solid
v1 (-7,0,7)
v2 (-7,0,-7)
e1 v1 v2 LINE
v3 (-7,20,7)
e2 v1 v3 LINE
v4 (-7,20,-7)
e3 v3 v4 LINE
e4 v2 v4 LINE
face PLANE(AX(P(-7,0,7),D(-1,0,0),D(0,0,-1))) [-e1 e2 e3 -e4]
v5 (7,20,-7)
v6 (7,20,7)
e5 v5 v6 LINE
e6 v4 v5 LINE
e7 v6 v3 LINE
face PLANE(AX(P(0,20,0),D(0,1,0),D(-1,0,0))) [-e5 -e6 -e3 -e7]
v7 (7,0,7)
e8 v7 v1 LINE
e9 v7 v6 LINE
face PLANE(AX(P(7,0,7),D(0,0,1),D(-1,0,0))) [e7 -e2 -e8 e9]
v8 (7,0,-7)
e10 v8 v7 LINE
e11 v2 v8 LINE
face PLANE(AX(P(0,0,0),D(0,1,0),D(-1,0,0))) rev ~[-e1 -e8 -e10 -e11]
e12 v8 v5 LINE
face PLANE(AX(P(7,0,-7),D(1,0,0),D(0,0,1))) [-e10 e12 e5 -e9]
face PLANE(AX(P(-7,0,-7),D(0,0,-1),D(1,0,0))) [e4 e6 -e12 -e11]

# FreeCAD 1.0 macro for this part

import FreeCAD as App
import Part
import Sketcher
Q = App.Units.Quantity


def add_polygon(sketch, points):
    """Adds a closed chain of lines whose ends are joined by coincident constraints."""
    first, n = sketch.GeometryCount, len(points)
    for a, b in zip(points, points[1:] + points[:1]):
        sketch.addGeometry(Part.LineSegment(App.Vector(*a, 0), App.Vector(*b, 0)), False)
    for i in range(n):
        sketch.addConstraint(Sketcher.Constraint("Coincident", first + i, 2, first + (i + 1) % n, 1))

doc = App.newDocument("Part")
body = doc.addObject("PartDesign::Body", "Body")

sketch1 = body.newObject("Sketcher::SketchObject", "Sketch")
sketch1.AttachmentSupport = (doc.getObject("XZ_Plane"), [""])
sketch1.MapMode = "FlatFace"
add_polygon(sketch1, [(-7, 7), (7, 7), (7, -7), (-7, -7)])
sketch1.addConstraint(Sketcher.Constraint("Horizontal", 0))
sketch1.addConstraint(Sketcher.Constraint("Vertical", 1))
sketch1.addConstraint(Sketcher.Constraint("Horizontal", 2))
sketch1.addConstraint(Sketcher.Constraint("Vertical", 3))
sketch1.addConstraint(Sketcher.Constraint("Symmetric", 0, 2, 2, 2, -1, 1))
sketch1.addConstraint(Sketcher.Constraint("Equal", 2, 1))
sketch1.addConstraint(Sketcher.Constraint("DistanceX", 0, 1, 0, 2, Q("14 mm")))
pad1 = body.newObject("PartDesign::Pad", "Pad")
pad1.Profile = sketch1
pad1.Length = 20
pad1.Reversed = True

doc.recompute()
